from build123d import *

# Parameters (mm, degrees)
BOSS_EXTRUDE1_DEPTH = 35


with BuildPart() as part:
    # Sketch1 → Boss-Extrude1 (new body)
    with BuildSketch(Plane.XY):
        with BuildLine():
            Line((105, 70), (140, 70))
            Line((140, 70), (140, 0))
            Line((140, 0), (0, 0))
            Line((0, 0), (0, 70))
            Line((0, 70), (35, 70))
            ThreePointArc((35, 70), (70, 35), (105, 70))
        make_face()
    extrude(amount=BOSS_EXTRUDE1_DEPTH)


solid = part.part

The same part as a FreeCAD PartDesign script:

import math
import FreeCAD as App
import Part
import Sketcher
Q = App.Units.Quantity

doc = App.newDocument("Part")
params = doc.addObject("Spreadsheet::Sheet", "Params")
for row, (alias, value) in enumerate([
    ("sketch1_radius", "35 mm"),
    ("sketch1_width", "35 mm"),
    ("sketch1_height", "70 mm"),
    ("pad1_length", "35 mm"),
], start=1):
    params.set(f"A{row}", alias)
    params.set(f"B{row}", "=" + value)
    params.setAlias(f"B{row}", alias)

body = doc.addObject("PartDesign::Body", "Body")

# Sketch on XY plane
sketch1 = body.newObject("Sketcher::SketchObject", "Sketch")
sketch1.AttachmentSupport = (doc.getObject("XY_Plane"), [""])
sketch1.MapMode = "FlatFace"
sketch1.addGeometry([
    Part.LineSegment(App.Vector(140, 70, 0), App.Vector(105, 70, 0)),  # 0
    Part.ArcOfCircle(Part.Circle(App.Vector(70, 70, 0), App.Vector(0, 0, 1), 35), math.radians(180), math.radians(360)),  # 1
    Part.LineSegment(App.Vector(35, 70, 0), App.Vector(0, 70, 0)),  # 2
    Part.LineSegment(App.Vector(0, 70, 0), App.Vector(0, 0, 0)),  # 3
    Part.LineSegment(App.Vector(0, 0, 0), App.Vector(140, 0, 0)),  # 4
    Part.LineSegment(App.Vector(140, 0, 0), App.Vector(140, 70, 0)),  # 5
], False)
sketch1.addConstraint([
    Sketcher.Constraint("Coincident", 0, 2, 1, 2),
    Sketcher.Constraint("Coincident", 1, 1, 2, 1),
    Sketcher.Constraint("Coincident", 2, 2, 3, 1),
    Sketcher.Constraint("Coincident", 3, 2, 4, 1),
    Sketcher.Constraint("Coincident", 4, 2, 5, 1),
    Sketcher.Constraint("Coincident", 5, 2, 0, 1),
    Sketcher.Constraint("Horizontal", 0),
    Sketcher.Constraint("Horizontal", 2),
    Sketcher.Constraint("Vertical", 3),
    Sketcher.Constraint("Horizontal", 4),
    Sketcher.Constraint("Vertical", 5),
    Sketcher.Constraint("Coincident", 3, 2, -1, 1),
    Sketcher.Constraint("Horizontal", 1, 3, 0, 2),
    Sketcher.Constraint("Horizontal", 0, 2, 1, 1),
    Sketcher.Constraint("Equal", 0, 2),
    Sketcher.Constraint("Radius", 1, Q("35 mm")),
    Sketcher.Constraint("DistanceX", 0, 2, 0, 1, Q("35 mm")),
    Sketcher.Constraint("DistanceY", 3, 2, 3, 1, Q("70 mm")),
])
sketch1.setExpression("Constraints[15]", "Params.sketch1_radius")
sketch1.setExpression("Constraints[16]", "Params.sketch1_width")
sketch1.setExpression("Constraints[17]", "Params.sketch1_height")
pad1 = body.newObject("PartDesign::Pad", "Pad")
pad1.Profile = sketch1
pad1.setExpression("Length", "Params.pad1_length")

doc.recompute()
